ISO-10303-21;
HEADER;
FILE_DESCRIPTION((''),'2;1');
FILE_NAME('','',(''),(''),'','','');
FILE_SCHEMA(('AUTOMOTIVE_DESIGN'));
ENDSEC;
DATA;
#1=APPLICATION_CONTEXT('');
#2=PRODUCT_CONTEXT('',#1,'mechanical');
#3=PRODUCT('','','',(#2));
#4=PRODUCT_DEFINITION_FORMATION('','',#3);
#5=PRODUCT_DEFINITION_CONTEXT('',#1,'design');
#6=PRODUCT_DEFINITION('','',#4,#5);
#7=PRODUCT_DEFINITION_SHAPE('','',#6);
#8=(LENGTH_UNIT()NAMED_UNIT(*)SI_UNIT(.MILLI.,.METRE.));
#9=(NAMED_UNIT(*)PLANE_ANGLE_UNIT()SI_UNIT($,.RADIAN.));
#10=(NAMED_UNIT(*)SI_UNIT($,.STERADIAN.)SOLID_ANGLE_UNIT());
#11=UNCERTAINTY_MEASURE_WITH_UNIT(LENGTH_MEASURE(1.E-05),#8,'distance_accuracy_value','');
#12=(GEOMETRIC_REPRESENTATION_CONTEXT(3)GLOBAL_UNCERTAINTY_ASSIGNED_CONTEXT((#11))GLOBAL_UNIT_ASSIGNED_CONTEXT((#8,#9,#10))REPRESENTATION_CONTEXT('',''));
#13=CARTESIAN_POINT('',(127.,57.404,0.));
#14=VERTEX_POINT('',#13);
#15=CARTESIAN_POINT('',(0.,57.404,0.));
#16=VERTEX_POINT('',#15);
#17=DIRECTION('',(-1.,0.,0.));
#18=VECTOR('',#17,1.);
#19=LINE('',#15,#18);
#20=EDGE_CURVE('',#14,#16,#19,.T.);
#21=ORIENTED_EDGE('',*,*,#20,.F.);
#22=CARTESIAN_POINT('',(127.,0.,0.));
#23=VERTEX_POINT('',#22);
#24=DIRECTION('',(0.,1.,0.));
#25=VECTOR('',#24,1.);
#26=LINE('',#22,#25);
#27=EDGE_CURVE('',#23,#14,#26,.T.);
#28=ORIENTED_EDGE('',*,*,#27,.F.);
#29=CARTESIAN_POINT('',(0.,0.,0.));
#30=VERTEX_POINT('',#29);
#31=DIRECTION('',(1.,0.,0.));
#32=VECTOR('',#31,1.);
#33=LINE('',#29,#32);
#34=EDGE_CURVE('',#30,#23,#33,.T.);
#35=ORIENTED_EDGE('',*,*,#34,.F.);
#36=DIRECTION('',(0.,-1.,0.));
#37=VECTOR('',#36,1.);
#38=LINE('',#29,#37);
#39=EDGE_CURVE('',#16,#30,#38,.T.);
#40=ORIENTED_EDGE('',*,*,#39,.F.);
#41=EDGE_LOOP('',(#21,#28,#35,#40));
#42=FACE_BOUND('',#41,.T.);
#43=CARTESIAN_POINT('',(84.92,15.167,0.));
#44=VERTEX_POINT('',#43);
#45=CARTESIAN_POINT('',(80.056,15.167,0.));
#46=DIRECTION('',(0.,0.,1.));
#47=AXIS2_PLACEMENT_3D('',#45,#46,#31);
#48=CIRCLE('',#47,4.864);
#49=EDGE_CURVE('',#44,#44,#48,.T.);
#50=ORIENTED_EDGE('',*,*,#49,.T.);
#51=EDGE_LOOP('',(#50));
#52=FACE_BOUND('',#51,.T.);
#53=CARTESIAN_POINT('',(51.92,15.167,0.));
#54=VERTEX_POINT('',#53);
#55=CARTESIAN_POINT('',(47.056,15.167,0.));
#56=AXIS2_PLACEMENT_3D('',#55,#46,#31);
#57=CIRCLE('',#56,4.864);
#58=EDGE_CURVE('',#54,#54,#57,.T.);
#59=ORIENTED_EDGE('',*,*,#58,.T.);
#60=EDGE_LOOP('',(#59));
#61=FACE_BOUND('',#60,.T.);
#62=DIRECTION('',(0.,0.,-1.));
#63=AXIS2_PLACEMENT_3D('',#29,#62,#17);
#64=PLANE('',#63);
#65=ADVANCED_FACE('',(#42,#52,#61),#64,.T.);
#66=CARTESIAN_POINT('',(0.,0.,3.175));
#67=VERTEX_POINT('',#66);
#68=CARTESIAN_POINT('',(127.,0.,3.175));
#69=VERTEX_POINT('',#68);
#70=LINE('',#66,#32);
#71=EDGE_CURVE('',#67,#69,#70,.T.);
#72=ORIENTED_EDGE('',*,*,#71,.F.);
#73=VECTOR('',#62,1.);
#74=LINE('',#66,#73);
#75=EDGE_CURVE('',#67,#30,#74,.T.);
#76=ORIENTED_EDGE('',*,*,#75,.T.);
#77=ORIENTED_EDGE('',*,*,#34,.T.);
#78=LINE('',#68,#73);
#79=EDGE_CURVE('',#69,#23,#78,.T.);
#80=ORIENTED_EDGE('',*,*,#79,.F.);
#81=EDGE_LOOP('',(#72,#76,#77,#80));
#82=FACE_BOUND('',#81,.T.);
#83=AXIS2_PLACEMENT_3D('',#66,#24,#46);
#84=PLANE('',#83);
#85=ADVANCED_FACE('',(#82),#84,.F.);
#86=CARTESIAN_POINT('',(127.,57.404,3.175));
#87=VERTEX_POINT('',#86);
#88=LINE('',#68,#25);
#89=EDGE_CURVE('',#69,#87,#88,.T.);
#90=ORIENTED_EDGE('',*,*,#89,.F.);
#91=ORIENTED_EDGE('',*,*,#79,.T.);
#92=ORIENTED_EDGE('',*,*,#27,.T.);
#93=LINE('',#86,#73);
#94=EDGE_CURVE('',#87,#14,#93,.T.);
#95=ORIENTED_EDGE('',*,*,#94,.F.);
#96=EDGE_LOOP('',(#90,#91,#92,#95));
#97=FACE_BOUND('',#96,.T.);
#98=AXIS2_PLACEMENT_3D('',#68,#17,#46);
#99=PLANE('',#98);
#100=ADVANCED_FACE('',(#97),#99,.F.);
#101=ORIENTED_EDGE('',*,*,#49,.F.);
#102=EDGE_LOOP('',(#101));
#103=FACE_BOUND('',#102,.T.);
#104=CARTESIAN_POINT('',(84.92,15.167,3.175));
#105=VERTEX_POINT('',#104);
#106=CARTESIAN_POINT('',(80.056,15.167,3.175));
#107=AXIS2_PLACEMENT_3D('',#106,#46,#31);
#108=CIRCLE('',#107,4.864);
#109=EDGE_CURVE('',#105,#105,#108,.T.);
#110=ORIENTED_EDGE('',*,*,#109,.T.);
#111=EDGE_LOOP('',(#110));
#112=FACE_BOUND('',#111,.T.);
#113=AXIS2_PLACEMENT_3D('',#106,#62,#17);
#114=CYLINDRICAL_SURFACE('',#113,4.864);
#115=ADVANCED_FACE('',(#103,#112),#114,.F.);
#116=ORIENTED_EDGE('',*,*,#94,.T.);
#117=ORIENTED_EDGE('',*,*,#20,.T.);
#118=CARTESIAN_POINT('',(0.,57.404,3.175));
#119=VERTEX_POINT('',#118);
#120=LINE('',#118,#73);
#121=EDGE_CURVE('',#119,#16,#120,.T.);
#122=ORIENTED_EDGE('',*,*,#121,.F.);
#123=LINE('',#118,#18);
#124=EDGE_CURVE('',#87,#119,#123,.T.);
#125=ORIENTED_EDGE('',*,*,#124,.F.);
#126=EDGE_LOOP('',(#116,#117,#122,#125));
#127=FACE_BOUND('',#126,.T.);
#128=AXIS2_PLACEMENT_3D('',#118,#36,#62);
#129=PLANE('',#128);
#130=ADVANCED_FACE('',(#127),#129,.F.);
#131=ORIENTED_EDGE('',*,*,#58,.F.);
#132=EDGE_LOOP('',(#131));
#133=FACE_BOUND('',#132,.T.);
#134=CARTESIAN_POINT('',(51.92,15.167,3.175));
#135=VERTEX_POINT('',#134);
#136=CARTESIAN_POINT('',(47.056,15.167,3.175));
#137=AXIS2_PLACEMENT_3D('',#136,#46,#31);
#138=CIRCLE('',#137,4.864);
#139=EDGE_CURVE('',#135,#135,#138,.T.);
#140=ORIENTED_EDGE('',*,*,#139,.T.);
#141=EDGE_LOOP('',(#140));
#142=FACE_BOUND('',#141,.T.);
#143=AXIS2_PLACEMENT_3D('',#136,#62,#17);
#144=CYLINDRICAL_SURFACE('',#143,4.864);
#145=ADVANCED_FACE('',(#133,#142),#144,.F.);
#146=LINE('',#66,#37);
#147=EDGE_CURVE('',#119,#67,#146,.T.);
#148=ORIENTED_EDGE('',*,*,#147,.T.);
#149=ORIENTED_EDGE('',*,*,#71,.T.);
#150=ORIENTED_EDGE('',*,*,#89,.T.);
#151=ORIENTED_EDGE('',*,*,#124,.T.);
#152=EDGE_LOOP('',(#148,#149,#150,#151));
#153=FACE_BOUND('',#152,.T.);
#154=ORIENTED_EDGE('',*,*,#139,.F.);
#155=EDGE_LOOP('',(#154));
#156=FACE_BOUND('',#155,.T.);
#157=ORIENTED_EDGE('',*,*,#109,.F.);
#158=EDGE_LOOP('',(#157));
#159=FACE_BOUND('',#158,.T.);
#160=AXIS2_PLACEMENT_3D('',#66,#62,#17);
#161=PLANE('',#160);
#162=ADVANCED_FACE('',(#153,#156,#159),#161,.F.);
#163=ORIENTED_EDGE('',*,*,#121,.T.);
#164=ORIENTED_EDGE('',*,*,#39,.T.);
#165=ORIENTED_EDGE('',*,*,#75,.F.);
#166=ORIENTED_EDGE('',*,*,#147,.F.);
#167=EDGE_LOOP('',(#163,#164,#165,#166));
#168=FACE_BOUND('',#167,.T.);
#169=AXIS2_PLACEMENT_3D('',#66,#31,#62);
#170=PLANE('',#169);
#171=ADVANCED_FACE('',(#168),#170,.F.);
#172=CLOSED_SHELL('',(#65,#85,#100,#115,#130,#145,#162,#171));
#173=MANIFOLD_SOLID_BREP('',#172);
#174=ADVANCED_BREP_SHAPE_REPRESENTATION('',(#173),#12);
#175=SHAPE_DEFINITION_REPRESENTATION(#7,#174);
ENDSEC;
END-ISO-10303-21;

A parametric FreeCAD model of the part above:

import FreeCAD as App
import Part
import Sketcher
from FreeCAD import Vector
Q = App.Units.Quantity


def add_polygon(sketch, points):
    """Adds a closed chain of lines whose ends are joined by coincident constraints."""
    first, n = sketch.GeometryCount, len(points)
    for a, b in zip(points, points[1:] + points[:1]):
        sketch.addGeometry(Part.LineSegment(App.Vector(*a, 0), App.Vector(*b, 0)), False)
    for i in range(n):
        sketch.addConstraint(Sketcher.Constraint("Coincident", first + i, 2, first + (i + 1) % n, 1))

doc = App.newDocument("Part")
body = doc.addObject("PartDesign::Body", "Body")

# Sketch on XY plane
sketch1 = body.newObject("Sketcher::SketchObject", "Sketch")
sketch1.AttachmentSupport = (doc.getObject("XY_Plane"), [""])
sketch1.MapMode = "FlatFace"
add_polygon(sketch1, [(0, 57.4), (0, 0), (127, 0), (127, 57.4)])  # lines 0-3
sketch1.addGeometry(Part.Circle(Vector(47.1, 15.2, 0), Vector(0, 0, 1), 4.9), False)  # 4
sketch1.addGeometry(Part.Circle(Vector(80.1, 15.2, 0), Vector(0, 0, 1), 4.9), False)  # 5
sketch1.addConstraint([
    Sketcher.Constraint("Vertical", 0),
    Sketcher.Constraint("Horizontal", 1),
    Sketcher.Constraint("Vertical", 2),
    Sketcher.Constraint("Horizontal", 3),
    Sketcher.Constraint("Coincident", 0, 2, -1, 1),
    Sketcher.Constraint("Equal", 4, 5),
    Sketcher.Constraint("Horizontal", 4, 3, 5, 3),
    Sketcher.Constraint("DistanceX", 1, 1, 1, 2, Q("5 in")),
    Sketcher.Constraint("DistanceY", 0, 2, 0, 1, Q("2.26 in")),
    Sketcher.Constraint("Diameter", 4, Q("9.728 mm")),
    Sketcher.Constraint("DistanceX", -1, 1, 4, 3, Q("47.056 mm")),
    Sketcher.Constraint("DistanceY", -1, 1, 4, 3, Q("15.167 mm")),
    Sketcher.Constraint("DistanceX", -1, 1, 5, 3, Q("80.056 mm")),
])
pad1 = body.newObject("PartDesign::Pad", "Pad")
pad1.Profile = sketch1
pad1.Length = Q("0.125 in")

doc.recompute()
